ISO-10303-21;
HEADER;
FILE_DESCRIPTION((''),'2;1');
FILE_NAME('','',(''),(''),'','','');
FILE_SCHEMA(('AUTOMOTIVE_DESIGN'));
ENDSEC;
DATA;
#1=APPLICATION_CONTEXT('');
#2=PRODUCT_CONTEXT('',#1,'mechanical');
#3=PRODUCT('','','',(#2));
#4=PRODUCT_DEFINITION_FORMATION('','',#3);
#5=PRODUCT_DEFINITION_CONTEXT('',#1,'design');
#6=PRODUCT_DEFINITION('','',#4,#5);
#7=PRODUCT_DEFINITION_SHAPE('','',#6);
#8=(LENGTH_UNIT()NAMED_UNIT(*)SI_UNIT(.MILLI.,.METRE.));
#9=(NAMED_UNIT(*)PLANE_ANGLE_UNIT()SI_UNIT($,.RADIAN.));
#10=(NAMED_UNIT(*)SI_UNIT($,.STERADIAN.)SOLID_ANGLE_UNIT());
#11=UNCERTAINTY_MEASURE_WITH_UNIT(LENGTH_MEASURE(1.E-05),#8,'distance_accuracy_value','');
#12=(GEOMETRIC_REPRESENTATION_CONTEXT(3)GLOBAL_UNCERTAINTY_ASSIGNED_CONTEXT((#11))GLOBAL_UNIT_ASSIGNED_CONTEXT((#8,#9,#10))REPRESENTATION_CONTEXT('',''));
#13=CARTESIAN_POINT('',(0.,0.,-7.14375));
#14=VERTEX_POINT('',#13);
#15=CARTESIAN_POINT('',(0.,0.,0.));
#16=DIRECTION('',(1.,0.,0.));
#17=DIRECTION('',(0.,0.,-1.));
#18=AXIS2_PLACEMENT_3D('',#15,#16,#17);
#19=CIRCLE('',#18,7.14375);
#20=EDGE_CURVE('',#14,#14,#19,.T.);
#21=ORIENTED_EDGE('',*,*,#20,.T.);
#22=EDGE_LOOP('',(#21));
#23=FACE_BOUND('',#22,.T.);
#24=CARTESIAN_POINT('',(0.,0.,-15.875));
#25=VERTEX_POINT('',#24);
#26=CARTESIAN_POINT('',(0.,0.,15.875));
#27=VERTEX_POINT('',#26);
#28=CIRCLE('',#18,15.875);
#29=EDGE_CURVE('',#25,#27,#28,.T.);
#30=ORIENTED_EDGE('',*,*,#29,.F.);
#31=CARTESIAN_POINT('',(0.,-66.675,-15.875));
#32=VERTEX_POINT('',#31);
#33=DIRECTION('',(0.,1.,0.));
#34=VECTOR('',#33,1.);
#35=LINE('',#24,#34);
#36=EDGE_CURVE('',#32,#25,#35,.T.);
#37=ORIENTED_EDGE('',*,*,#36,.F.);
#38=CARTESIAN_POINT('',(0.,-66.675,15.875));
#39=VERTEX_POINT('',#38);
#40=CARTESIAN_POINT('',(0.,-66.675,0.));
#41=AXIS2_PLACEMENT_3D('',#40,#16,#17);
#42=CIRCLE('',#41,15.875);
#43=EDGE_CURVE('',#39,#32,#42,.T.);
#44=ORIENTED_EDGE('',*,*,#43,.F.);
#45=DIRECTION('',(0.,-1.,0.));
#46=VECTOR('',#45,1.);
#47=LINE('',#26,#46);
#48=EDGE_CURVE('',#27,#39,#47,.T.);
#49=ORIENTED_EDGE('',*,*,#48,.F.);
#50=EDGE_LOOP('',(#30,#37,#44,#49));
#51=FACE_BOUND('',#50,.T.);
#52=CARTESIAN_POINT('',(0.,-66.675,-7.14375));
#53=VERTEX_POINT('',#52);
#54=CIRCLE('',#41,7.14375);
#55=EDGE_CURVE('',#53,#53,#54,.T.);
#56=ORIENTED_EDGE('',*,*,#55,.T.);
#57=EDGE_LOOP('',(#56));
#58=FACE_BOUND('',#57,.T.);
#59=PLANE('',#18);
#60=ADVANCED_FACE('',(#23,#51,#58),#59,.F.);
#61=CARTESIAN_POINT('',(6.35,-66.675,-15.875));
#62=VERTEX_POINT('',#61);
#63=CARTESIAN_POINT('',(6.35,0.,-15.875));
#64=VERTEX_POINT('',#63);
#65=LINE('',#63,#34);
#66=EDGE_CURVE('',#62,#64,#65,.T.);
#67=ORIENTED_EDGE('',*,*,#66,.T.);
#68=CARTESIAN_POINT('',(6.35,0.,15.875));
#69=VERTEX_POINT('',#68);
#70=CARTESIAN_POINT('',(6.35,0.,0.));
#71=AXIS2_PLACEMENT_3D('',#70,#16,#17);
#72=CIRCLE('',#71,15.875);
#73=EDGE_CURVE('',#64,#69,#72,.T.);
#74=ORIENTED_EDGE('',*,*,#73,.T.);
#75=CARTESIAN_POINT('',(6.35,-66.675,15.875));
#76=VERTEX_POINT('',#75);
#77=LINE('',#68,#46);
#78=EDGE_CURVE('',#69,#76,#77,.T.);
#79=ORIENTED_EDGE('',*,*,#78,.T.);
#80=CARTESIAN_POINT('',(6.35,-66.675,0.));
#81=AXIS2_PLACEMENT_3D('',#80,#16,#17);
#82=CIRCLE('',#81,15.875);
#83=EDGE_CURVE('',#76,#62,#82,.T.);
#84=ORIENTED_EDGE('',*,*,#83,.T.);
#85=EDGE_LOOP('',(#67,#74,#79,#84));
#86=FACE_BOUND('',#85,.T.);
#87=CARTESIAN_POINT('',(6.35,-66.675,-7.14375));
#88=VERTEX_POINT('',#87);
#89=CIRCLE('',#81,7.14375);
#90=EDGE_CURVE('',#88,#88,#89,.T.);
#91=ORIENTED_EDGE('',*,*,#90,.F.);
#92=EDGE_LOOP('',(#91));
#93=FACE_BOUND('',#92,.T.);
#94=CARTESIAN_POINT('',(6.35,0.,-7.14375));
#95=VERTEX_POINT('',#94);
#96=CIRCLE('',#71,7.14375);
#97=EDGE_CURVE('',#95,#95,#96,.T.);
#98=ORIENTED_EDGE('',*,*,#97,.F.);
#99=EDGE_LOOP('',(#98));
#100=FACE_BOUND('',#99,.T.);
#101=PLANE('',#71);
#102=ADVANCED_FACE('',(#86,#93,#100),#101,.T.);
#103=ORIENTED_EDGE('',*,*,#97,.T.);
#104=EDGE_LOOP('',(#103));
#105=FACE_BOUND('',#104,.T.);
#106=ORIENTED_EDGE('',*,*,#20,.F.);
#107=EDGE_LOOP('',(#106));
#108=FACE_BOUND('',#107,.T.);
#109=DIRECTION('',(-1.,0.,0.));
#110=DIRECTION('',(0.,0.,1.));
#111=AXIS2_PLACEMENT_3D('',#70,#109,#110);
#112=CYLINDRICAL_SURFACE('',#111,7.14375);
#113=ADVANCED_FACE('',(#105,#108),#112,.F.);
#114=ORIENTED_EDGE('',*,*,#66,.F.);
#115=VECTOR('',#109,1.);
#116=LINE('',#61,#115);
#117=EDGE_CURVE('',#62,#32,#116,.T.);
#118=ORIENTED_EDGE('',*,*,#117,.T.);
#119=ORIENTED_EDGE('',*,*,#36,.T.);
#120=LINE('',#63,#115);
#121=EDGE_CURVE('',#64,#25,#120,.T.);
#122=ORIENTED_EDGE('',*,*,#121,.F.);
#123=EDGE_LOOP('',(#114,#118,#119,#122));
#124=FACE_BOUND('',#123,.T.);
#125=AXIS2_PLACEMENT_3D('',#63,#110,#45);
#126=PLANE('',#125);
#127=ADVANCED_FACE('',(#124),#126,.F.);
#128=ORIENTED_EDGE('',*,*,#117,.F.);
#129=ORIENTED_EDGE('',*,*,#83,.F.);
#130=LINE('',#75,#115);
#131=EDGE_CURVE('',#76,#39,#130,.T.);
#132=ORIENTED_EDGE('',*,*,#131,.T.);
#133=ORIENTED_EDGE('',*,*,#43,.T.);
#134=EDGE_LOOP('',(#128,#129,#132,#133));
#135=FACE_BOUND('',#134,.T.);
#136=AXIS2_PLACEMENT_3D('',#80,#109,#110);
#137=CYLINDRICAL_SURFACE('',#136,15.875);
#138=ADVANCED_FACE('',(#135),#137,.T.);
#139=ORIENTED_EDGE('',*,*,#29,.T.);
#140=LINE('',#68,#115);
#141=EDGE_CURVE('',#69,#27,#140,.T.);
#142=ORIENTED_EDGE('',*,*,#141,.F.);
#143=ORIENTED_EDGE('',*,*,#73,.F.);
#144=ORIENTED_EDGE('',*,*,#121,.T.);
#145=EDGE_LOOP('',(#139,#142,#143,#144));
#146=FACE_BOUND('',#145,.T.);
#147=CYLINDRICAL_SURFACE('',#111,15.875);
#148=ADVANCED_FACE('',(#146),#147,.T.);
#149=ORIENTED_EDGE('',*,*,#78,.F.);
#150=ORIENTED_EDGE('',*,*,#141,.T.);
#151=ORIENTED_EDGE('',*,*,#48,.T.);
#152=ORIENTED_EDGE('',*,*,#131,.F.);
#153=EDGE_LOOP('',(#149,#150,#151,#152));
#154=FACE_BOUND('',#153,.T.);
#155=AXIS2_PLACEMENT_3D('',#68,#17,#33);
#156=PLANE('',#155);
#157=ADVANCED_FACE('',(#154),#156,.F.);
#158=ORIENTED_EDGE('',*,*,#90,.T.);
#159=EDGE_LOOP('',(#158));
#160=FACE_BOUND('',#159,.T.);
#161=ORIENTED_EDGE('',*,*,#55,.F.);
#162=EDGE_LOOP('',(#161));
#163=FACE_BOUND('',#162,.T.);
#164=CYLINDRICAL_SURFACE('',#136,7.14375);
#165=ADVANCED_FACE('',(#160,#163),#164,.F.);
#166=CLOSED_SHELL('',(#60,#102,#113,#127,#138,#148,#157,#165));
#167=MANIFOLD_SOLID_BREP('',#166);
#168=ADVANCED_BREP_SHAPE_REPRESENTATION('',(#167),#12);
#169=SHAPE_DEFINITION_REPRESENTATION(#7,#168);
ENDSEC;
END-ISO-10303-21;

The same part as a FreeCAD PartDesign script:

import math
import FreeCAD as App
import Part
import Sketcher
from FreeCAD import Vector
Q = App.Units.Quantity

doc = App.newDocument("Part")
body = doc.addObject("PartDesign::Body", "Body")

# Sketch on YZ plane
sketch1 = body.newObject("Sketcher::SketchObject", "Sketch")
sketch1.AttachmentSupport = (doc.getObject("YZ_Plane"), [""])
sketch1.MapMode = "FlatFace"
sketch1.addGeometry([
    Part.LineSegment(Vector(-67, -16, 0), Vector(0, -16, 0)),  # 0
    Part.ArcOfCircle(Part.Circle(Vector(0, 0, 0), Vector(0, 0, 1), 16), math.radians(-90), math.radians(90)),  # 1
    Part.LineSegment(Vector(0, 16, 0), Vector(-67, 16, 0)),  # 2
    Part.ArcOfCircle(Part.Circle(Vector(-67, 0, 0), Vector(0, 0, 1), 16), math.radians(90), math.radians(270)),  # 3
    Part.Circle(Vector(-67, 0, 0), Vector(0, 0, 1), 7),  # 4
    Part.Circle(Vector(0, 0, 0), Vector(0, 0, 1), 7),  # 5
], False)
sketch1.addConstraint([
    Sketcher.Constraint("Tangent", 0, 2, 1, 1),
    Sketcher.Constraint("Tangent", 1, 2, 2, 1),
    Sketcher.Constraint("Tangent", 2, 2, 3, 1),
    Sketcher.Constraint("Tangent", 3, 2, 0, 1),
    Sketcher.Constraint("Horizontal", 0),
    Sketcher.Constraint("Horizontal", 2),
    Sketcher.Constraint("Coincident", 1, 3, -1, 1),
    Sketcher.Constraint("Coincident", 5, 3, -1, 1),
    Sketcher.Constraint("Coincident", 4, 3, 3, 3),
    Sketcher.Constraint("Equal", 4, 5),
    Sketcher.Constraint("Diameter", 4, Q("0.5625 in")),
    Sketcher.Constraint("Radius", 1, Q("0.625 in")),
    Sketcher.Constraint("DistanceX", 0, 1, 0, 2, Q("2.625 in")),
])
pad1 = body.newObject("PartDesign::Pad", "Pad")
pad1.Profile = sketch1
pad1.Length = Q("0.25 in")

doc.recompute()
